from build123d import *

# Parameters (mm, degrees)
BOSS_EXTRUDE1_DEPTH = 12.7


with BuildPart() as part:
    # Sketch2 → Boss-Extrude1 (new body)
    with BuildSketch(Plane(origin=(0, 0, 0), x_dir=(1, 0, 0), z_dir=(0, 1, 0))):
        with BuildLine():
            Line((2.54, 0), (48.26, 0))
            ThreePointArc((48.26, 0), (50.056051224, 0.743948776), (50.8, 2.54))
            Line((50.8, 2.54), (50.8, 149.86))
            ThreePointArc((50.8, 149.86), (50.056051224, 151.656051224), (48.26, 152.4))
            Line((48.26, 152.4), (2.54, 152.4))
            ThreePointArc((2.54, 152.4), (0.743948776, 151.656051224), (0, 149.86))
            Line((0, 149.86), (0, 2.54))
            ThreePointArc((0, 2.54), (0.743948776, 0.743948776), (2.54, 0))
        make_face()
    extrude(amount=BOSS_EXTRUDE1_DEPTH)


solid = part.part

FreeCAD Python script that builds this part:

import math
import FreeCAD as App
import Part
import Sketcher
from FreeCAD import Vector
Q = App.Units.Quantity

doc = App.newDocument("Part")
params = doc.addObject("Spreadsheet::Sheet", "Params")
for row, (alias, value) in enumerate([
    ("sketch1_radius", "0.1 in"),
    ("sketch1_width", "1.8 in"),
    ("sketch1_height", "5.8 in"),
    ("pad1_length", "0.5 in"),
], start=1):
    params.set(f"A{row}", alias)
    params.set(f"B{row}", "=" + value)
    params.setAlias(f"B{row}", alias)

body = doc.addObject("PartDesign::Body", "Body")

sketch1 = body.newObject("Sketcher::SketchObject", "Sketch")
sketch1.AttachmentSupport = (doc.getObject("XZ_Plane"), [""])
sketch1.MapMode = "FlatFace"
sketch1.addGeometry(Part.LineSegment(Vector(2.5, 0, 0), Vector(48.3, 0, 0)), False)
sketch1.addGeometry(Part.ArcOfCircle(Part.Circle(Vector(48.3, -2.5, 0), Vector(0, 0, 1), 2.5), math.radians(0), math.radians(90)), False)
sketch1.addGeometry(Part.LineSegment(Vector(50.8, -2.5, 0), Vector(50.8, -149.9, 0)), False)
sketch1.addGeometry(Part.ArcOfCircle(Part.Circle(Vector(48.3, -149.9, 0), Vector(0, 0, 1), 2.5), math.radians(-90), math.radians(0)), False)
sketch1.addGeometry(Part.LineSegment(Vector(48.3, -152.4, 0), Vector(2.5, -152.4, 0)), False)
sketch1.addGeometry(Part.ArcOfCircle(Part.Circle(Vector(2.5, -149.9, 0), Vector(0, 0, 1), 2.5), math.radians(-180), math.radians(-90)), False)
sketch1.addGeometry(Part.LineSegment(Vector(0, -149.9, 0), Vector(0, -2.5, 0)), False)
sketch1.addGeometry(Part.ArcOfCircle(Part.Circle(Vector(2.5, -2.5, 0), Vector(0, 0, 1), 2.5), math.radians(90), math.radians(180)), False)
sketch1.addConstraint(Sketcher.Constraint("Tangent", 0, 2, 1, 2))
sketch1.addConstraint(Sketcher.Constraint("Tangent", 1, 1, 2, 1))
sketch1.addConstraint(Sketcher.Constraint("Tangent", 2, 2, 3, 2))
sketch1.addConstraint(Sketcher.Constraint("Tangent", 3, 1, 4, 1))
sketch1.addConstraint(Sketcher.Constraint("Tangent", 4, 2, 5, 2))
sketch1.addConstraint(Sketcher.Constraint("Tangent", 5, 1, 6, 1))
sketch1.addConstraint(Sketcher.Constraint("Tangent", 6, 2, 7, 2))
sketch1.addConstraint(Sketcher.Constraint("Tangent", 7, 1, 0, 1))
sketch1.addConstraint(Sketcher.Constraint("Horizontal", 0))
sketch1.addConstraint(Sketcher.Constraint("Vertical", 2))
sketch1.addConstraint(Sketcher.Constraint("Horizontal", 4))
sketch1.addConstraint(Sketcher.Constraint("Vertical", 6))
sketch1.addConstraint(Sketcher.Constraint("Equal", 1, 3))
sketch1.addConstraint(Sketcher.Constraint("Equal", 3, 5))
sketch1.addConstraint(Sketcher.Constraint("Equal", 5, 7))
sketch1.addConstraint(Sketcher.Constraint("PointOnObject", 0, 2, -1))
sketch1.addConstraint(Sketcher.Constraint("PointOnObject", 5, 1, -2))
sketch1.addConstraint(Sketcher.Constraint("Radius", 1, Q("0.1 in")))
sketch1.addConstraint(Sketcher.Constraint("DistanceX", 0, 1, 0, 2, Q("1.8 in")))
sketch1.addConstraint(Sketcher.Constraint("DistanceY", 2, 2, 2, 1, Q("5.8 in")))
sketch1.setExpression("Constraints[17]", "Params.sketch1_radius")
sketch1.setExpression("Constraints[18]", "Params.sketch1_width")
sketch1.setExpression("Constraints[19]", "Params.sketch1_height")
pad1 = body.newObject("PartDesign::Pad", "Pad")
pad1.Profile = sketch1
pad1.setExpression("Length", "Params.pad1_length")
pad1.Reversed = True

doc.recompute()
